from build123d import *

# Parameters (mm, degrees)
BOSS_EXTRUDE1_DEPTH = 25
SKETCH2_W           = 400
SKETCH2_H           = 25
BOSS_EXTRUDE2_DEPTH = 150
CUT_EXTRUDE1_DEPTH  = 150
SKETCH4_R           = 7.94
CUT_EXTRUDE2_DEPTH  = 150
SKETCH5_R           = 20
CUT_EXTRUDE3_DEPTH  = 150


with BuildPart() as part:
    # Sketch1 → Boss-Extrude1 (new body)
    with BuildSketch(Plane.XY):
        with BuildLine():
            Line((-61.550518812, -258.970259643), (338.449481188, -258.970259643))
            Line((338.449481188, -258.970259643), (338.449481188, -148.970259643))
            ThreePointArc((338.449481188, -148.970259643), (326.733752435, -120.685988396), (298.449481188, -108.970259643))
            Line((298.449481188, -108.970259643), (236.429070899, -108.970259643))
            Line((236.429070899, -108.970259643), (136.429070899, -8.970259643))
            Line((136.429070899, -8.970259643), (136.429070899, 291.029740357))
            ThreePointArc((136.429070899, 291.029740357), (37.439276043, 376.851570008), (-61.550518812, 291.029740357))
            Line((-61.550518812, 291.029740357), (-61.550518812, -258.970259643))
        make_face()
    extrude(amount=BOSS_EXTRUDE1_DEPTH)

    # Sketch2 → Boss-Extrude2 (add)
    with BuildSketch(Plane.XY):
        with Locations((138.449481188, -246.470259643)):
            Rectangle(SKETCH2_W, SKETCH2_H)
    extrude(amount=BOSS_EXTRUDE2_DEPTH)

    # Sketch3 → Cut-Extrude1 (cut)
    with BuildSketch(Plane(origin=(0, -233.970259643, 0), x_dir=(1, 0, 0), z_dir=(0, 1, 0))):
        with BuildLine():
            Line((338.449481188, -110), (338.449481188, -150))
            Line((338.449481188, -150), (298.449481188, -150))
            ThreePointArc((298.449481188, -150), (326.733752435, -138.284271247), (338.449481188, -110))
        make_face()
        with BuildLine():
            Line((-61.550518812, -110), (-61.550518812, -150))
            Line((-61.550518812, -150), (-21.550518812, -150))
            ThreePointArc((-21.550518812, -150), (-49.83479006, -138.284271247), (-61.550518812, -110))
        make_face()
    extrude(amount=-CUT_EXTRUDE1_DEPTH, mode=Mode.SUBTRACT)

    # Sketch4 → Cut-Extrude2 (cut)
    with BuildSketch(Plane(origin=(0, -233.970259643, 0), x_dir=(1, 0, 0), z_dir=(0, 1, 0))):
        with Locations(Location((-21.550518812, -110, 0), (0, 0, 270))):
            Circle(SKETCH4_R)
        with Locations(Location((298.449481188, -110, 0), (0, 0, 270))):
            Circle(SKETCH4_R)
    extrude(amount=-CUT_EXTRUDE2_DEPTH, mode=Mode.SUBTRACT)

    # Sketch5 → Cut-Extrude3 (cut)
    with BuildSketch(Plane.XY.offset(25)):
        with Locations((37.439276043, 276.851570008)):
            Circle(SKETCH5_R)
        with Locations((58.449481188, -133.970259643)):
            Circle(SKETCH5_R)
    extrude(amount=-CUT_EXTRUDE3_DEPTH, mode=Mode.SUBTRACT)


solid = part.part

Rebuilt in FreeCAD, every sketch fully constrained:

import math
import FreeCAD as App
import Part
import Sketcher
Q = App.Units.Quantity

doc = App.newDocument("Part")
body = doc.addObject("PartDesign::Body", "Body")

sketch1 = body.newObject("Sketcher::SketchObject", "Sketch")
sketch1.AttachmentSupport = (doc.getObject("XY_Plane"), [""])
sketch1.MapMode = "FlatFace"
sketch1.addGeometry(Part.LineSegment(App.Vector(-62, -259, 0), App.Vector(338, -259, 0)), False)
sketch1.addGeometry(Part.LineSegment(App.Vector(338, -259, 0), App.Vector(338, -149, 0)), False)
sketch1.addGeometry(Part.ArcOfCircle(Part.Circle(App.Vector(298, -149, 0), App.Vector(0, 0, 1), 40), math.radians(0), math.radians(90)), False)
sketch1.addGeometry(Part.LineSegment(App.Vector(298, -109, 0), App.Vector(236, -109, 0)), False)
sketch1.addGeometry(Part.LineSegment(App.Vector(236, -109, 0), App.Vector(136, -9, 0)), False)
sketch1.addGeometry(Part.LineSegment(App.Vector(136, -9, 0), App.Vector(136, 291, 0)), False)
sketch1.addGeometry(Part.ArcOfCircle(Part.Circle(App.Vector(37, 277, 0), App.Vector(0, 0, 1), 100), math.radians(8), math.radians(172)), False)
sketch1.addGeometry(Part.LineSegment(App.Vector(-62, 291, 0), App.Vector(-62, -259, 0)), False)
sketch1.addConstraint(Sketcher.Constraint("Coincident", 0, 2, 1, 1))
sketch1.addConstraint(Sketcher.Constraint("Tangent", 1, 2, 2, 1))
sketch1.addConstraint(Sketcher.Constraint("Tangent", 2, 2, 3, 1))
sketch1.addConstraint(Sketcher.Constraint("Coincident", 3, 2, 4, 1))
sketch1.addConstraint(Sketcher.Constraint("Coincident", 4, 2, 5, 1))
sketch1.addConstraint(Sketcher.Constraint("Coincident", 5, 2, 6, 1))
sketch1.addConstraint(Sketcher.Constraint("Coincident", 6, 2, 7, 1))
sketch1.addConstraint(Sketcher.Constraint("Coincident", 7, 2, 0, 1))
sketch1.addConstraint(Sketcher.Constraint("Horizontal", 0))
sketch1.addConstraint(Sketcher.Constraint("Vertical", 1))
sketch1.addConstraint(Sketcher.Constraint("Horizontal", 3))
sketch1.addConstraint(Sketcher.Constraint("Vertical", 5))
sketch1.addConstraint(Sketcher.Constraint("Vertical", 7))
sketch1.addConstraint(Sketcher.Constraint("Horizontal", 5, 2, 6, 2))
sketch1.addConstraint(Sketcher.Constraint("Radius", 2, 40.0))
sketch1.addConstraint(Sketcher.Constraint("Radius", 6, 100.0))
sketch1.addConstraint(Sketcher.Constraint("DistanceX", 0, 1, 0, 2, 400.0))
sketch1.addConstraint(Sketcher.Constraint("DistanceY", 1, 1, 1, 2, 110.0))
sketch1.addConstraint(Sketcher.Constraint("DistanceY", 5, 1, 5, 2, 300.0))
sketch1.addConstraint(Sketcher.Constraint("DistanceY", 7, 2, 7, 1, 550.0))
sketch1.addConstraint(Sketcher.Constraint("Angle", 4, Q("135 deg")))
sketch1.addConstraint(Sketcher.Constraint("DistanceX", 3, 2, 3, 1, 62.02041))
sketch1.addConstraint(Sketcher.Constraint("DistanceX", -1, 1, 2, 3, 298.449481))
sketch1.addConstraint(Sketcher.Constraint("DistanceY", 2, 3, -1, 1, 148.97026))
pad1 = body.newObject("PartDesign::Pad", "Pad")
pad1.Profile = sketch1
pad1.Length = 25

sketch2 = body.newObject("Sketcher::SketchObject", "Sketch001")
sketch2.AttachmentSupport = (doc.getObject("XY_Plane"), [""])
sketch2.MapMode = "FlatFace"
sketch2.addGeometry(Part.LineSegment(App.Vector(-62, -234, 0), App.Vector(-62, -259, 0)), False)
sketch2.addGeometry(Part.LineSegment(App.Vector(-62, -259, 0), App.Vector(338, -259, 0)), False)
sketch2.addGeometry(Part.LineSegment(App.Vector(338, -259, 0), App.Vector(338, -234, 0)), False)
sketch2.addGeometry(Part.LineSegment(App.Vector(338, -234, 0), App.Vector(-62, -234, 0)), False)
sketch2.addConstraint(Sketcher.Constraint("Coincident", 0, 2, 1, 1))
sketch2.addConstraint(Sketcher.Constraint("Coincident", 1, 2, 2, 1))
sketch2.addConstraint(Sketcher.Constraint("Coincident", 2, 2, 3, 1))
sketch2.addConstraint(Sketcher.Constraint("Coincident", 3, 2, 0, 1))
sketch2.addConstraint(Sketcher.Constraint("Vertical", 0))
sketch2.addConstraint(Sketcher.Constraint("Horizontal", 1))
sketch2.addConstraint(Sketcher.Constraint("Vertical", 2))
sketch2.addConstraint(Sketcher.Constraint("Horizontal", 3))
sketch2.addConstraint(Sketcher.Constraint("DistanceX", 1, 1, 1, 2, 400.0))
sketch2.addConstraint(Sketcher.Constraint("DistanceY", 0, 2, 0, 1, 25.0))
sketch2.addConstraint(Sketcher.Constraint("DistanceX", 0, 2, -1, 1, 61.550519))
sketch2.addConstraint(Sketcher.Constraint("DistanceY", 0, 2, -1, 1, 258.97026))
pad2 = body.newObject("PartDesign::Pad", "Pad001")
pad2.Profile = sketch2
pad2.Length = 150

sketch3 = body.newObject("Sketcher::SketchObject", "Sketch002")
sketch3.AttachmentSupport = (doc.getObject("XZ_Plane"), [""])
sketch3.MapMode = "FlatFace"
sketch3.AttachmentOffset = App.Placement(App.Vector(0, 0, 233.97026), App.Rotation())
sketch3.addGeometry(Part.LineSegment(App.Vector(338, 150, 0), App.Vector(338, 110, 0)), False)
sketch3.addGeometry(Part.ArcOfCircle(Part.Circle(App.Vector(298, 110, 0), App.Vector(0, 0, 1), 40), math.radians(0), math.radians(90)), False)
sketch3.addGeometry(Part.LineSegment(App.Vector(298, 150, 0), App.Vector(338, 150, 0)), False)
sketch3.addGeometry(Part.LineSegment(App.Vector(-62, 110, 0), App.Vector(-62, 150, 0)), False)
sketch3.addGeometry(Part.LineSegment(App.Vector(-62, 150, 0), App.Vector(-22, 150, 0)), False)
sketch3.addGeometry(Part.ArcOfCircle(Part.Circle(App.Vector(-22, 110, 0), App.Vector(0, 0, 1), 40), math.radians(90), math.radians(180)), False)
sketch3.addConstraint(Sketcher.Constraint("Tangent", 0, 2, 1, 1))
sketch3.addConstraint(Sketcher.Constraint("Tangent", 1, 2, 2, 1))
sketch3.addConstraint(Sketcher.Constraint("Coincident", 2, 2, 0, 1))
sketch3.addConstraint(Sketcher.Constraint("Coincident", 3, 2, 4, 1))
sketch3.addConstraint(Sketcher.Constraint("Tangent", 4, 2, 5, 1))
sketch3.addConstraint(Sketcher.Constraint("Tangent", 5, 2, 3, 1))
sketch3.addConstraint(Sketcher.Constraint("Vertical", 0))
sketch3.addConstraint(Sketcher.Constraint("Horizontal", 2))
sketch3.addConstraint(Sketcher.Constraint("Vertical", 3))
sketch3.addConstraint(Sketcher.Constraint("Horizontal", 4))
sketch3.addConstraint(Sketcher.Constraint("Equal", 1, 5))
sketch3.addConstraint(Sketcher.Constraint("Horizontal", 1, 3, 5, 3))
sketch3.addConstraint(Sketcher.Constraint("Radius", 1, 40.0))
sketch3.addConstraint(Sketcher.Constraint("DistanceY", -1, 1, 1, 3, 110.0))
sketch3.addConstraint(Sketcher.Constraint("DistanceX", 5, 3, 1, 3, 320.0))
sketch3.addConstraint(Sketcher.Constraint("DistanceX", -1, 1, 1, 3, 298.449481))
pocket1 = body.newObject("PartDesign::Pocket", "Pocket")
pocket1.Profile = sketch3
pocket1.Length = 150
pocket1.Reversed = True

sketch4 = body.newObject("Sketcher::SketchObject", "Sketch003")
sketch4.AttachmentSupport = (doc.getObject("XZ_Plane"), [""])
sketch4.MapMode = "FlatFace"
sketch4.AttachmentOffset = App.Placement(App.Vector(0, 0, 233.97026), App.Rotation())
sketch4.addGeometry(Part.Circle(App.Vector(-22, 110, 0), App.Vector(0, 0, 1), 8), False)
sketch4.addGeometry(Part.Circle(App.Vector(298, 110, 0), App.Vector(0, 0, 1), 8), False)
sketch4.addConstraint(Sketcher.Constraint("Equal", 0, 1))
sketch4.addConstraint(Sketcher.Constraint("Horizontal", 0, 3, 1, 3))
sketch4.addConstraint(Sketcher.Constraint("Diameter", 0, 15.88))
sketch4.addConstraint(Sketcher.Constraint("DistanceY", -1, 1, 0, 3, 110.0))
sketch4.addConstraint(Sketcher.Constraint("DistanceX", 0, 3, 1, 3, 320.0))
sketch4.addConstraint(Sketcher.Constraint("DistanceX", 0, 3, -1, 1, 21.550519))
pocket2 = body.newObject("PartDesign::Pocket", "Pocket001")
pocket2.Profile = sketch4
pocket2.Length = 150
pocket2.Reversed = True

sketch5 = body.newObject("Sketcher::SketchObject", "Sketch004")
sketch5.AttachmentSupport = (doc.getObject("XY_Plane"), [""])
sketch5.MapMode = "FlatFace"
sketch5.AttachmentOffset = App.Placement(App.Vector(0, 0, 25), App.Rotation())
sketch5.addGeometry(Part.Circle(App.Vector(37, 277, 0), App.Vector(0, 0, 1), 20), False)
sketch5.addGeometry(Part.Circle(App.Vector(58, -134, 0), App.Vector(0, 0, 1), 20), False)
sketch5.addConstraint(Sketcher.Constraint("Equal", 0, 1))
sketch5.addConstraint(Sketcher.Constraint("Diameter", 0, 40.0))
sketch5.addConstraint(Sketcher.Constraint("DistanceY", -1, 1, 0, 3, 276.85157))
sketch5.addConstraint(Sketcher.Constraint("DistanceX", -1, 1, 1, 3, 58.449481))
sketch5.addConstraint(Sketcher.Constraint("DistanceY", 1, 3, -1, 1, 133.97026))
sketch5.addConstraint(Sketcher.Constraint("DistanceX", -1, 1, 0, 3, 37.439276))
pocket3 = body.newObject("PartDesign::Pocket", "Pocket002")
pocket3.Profile = sketch5
pocket3.Length = 150

doc.recompute()
